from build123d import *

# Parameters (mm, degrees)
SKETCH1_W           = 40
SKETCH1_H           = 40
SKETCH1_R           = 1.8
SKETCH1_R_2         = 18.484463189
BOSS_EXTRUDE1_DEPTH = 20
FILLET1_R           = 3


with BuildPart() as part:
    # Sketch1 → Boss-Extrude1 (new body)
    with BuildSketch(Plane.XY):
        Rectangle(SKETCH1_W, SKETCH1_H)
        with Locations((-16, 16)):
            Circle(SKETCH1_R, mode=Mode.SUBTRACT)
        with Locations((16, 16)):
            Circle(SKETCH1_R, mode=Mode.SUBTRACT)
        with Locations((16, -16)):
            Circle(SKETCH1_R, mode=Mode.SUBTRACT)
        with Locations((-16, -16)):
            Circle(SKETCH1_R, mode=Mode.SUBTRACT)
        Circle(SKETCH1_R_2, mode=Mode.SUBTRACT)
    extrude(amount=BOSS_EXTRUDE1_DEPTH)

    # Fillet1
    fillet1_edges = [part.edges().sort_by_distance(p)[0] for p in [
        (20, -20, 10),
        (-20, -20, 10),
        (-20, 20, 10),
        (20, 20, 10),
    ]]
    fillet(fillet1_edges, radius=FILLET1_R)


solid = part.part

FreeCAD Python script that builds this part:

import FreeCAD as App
import Part
import Sketcher

V = App.Vector


def edges_at(feature, points):
    """Names of the edges that pass closest to the given points."""
    edges = feature.Shape.Edges
    near = lambda p: min(range(len(edges)), key=lambda i: edges[i].distToShape(Part.Vertex(*p))[0])
    return sorted({f"Edge{near(p) + 1}" for p in points})


def add_polygon(sketch, points):
    """Adds a closed chain of lines whose ends are joined by coincident constraints."""
    first, n = sketch.GeometryCount, len(points)
    for a, b in zip(points, points[1:] + points[:1]):
        sketch.addGeometry(Part.LineSegment(App.Vector(*a, 0), App.Vector(*b, 0)), False)
    for i in range(n):
        sketch.addConstraint(Sketcher.Constraint("Coincident", first + i, 2, first + (i + 1) % n, 1))

doc = App.newDocument("Part")
body = doc.addObject("PartDesign::Body", "Body")

sketch1 = doc.addObject("Sketcher::SketchObject", "Sketch")
body.addObject(sketch1)
sketch1.AttachmentSupport = (doc.XY_Plane, [""])
sketch1.MapMode = "FlatFace"
add_polygon(sketch1, [(-20, 20), (-20, -20), (20, -20), (20, 20)])
sketch1.addGeometry(Part.Circle(V(-16, -16, 0), V(0, 0, 1), 1.8), False)
sketch1.addGeometry(Part.Circle(V(16, -16, 0), V(0, 0, 1), 1.8), False)
sketch1.addGeometry(Part.Circle(V(-16, 16, 0), V(0, 0, 1), 1.8), False)
sketch1.addGeometry(Part.Circle(V(0, 0, 0), V(0, 0, 1), 18.5), False)
sketch1.addGeometry(Part.Circle(V(16, 16, 0), V(0, 0, 1), 1.8), False)
sketch1.addConstraint([
    Sketcher.Constraint("Vertical", 0),
    Sketcher.Constraint("Horizontal", 1),
    Sketcher.Constraint("Vertical", 2),
    Sketcher.Constraint("Horizontal", 3),
    Sketcher.Constraint("Coincident", 7, 3, -1, 1),
    Sketcher.Constraint("Equal", 4, 5),
    Sketcher.Constraint("Equal", 5, 6),
    Sketcher.Constraint("Equal", 6, 8),
    Sketcher.Constraint("Symmetric", 5, 3, 6, 3, -1, 1),
    Sketcher.Constraint("Symmetric", 4, 3, 8, 3, -1, 1),
    Sketcher.Constraint("Symmetric", 0, 2, 2, 2, -1, 1),
    Sketcher.Constraint("Symmetric", 4, 3, 5, 3, -2),
    Sketcher.Constraint("Equal", 3, 0),
    Sketcher.Constraint("Diameter", 4, 3.6),
    Sketcher.Constraint("DistanceX", 1, 1, 1, 2, 40.0),
    Sketcher.Constraint("DistanceX", 4, 3, -1, 1, 16.0),
    Sketcher.Constraint("DistanceY", 4, 3, -1, 1, 16.0),
    Sketcher.Constraint("Diameter", 7, 36.968926),
])
pad1 = doc.addObject("PartDesign::Pad", "Pad")
body.addObject(pad1)
pad1.Profile = sketch1
pad1.Length = 20
doc.recompute()

fillet = doc.addObject("PartDesign::Fillet", "Fillet")
body.addObject(fillet)
fillet.Base = (pad1, edges_at(pad1, [
    (20, -20, 10),
    (-20, -20, 10),
    (-20, 20, 10),
    (20, 20, 10),
]))
fillet.Radius = 3

doc.recompute()
